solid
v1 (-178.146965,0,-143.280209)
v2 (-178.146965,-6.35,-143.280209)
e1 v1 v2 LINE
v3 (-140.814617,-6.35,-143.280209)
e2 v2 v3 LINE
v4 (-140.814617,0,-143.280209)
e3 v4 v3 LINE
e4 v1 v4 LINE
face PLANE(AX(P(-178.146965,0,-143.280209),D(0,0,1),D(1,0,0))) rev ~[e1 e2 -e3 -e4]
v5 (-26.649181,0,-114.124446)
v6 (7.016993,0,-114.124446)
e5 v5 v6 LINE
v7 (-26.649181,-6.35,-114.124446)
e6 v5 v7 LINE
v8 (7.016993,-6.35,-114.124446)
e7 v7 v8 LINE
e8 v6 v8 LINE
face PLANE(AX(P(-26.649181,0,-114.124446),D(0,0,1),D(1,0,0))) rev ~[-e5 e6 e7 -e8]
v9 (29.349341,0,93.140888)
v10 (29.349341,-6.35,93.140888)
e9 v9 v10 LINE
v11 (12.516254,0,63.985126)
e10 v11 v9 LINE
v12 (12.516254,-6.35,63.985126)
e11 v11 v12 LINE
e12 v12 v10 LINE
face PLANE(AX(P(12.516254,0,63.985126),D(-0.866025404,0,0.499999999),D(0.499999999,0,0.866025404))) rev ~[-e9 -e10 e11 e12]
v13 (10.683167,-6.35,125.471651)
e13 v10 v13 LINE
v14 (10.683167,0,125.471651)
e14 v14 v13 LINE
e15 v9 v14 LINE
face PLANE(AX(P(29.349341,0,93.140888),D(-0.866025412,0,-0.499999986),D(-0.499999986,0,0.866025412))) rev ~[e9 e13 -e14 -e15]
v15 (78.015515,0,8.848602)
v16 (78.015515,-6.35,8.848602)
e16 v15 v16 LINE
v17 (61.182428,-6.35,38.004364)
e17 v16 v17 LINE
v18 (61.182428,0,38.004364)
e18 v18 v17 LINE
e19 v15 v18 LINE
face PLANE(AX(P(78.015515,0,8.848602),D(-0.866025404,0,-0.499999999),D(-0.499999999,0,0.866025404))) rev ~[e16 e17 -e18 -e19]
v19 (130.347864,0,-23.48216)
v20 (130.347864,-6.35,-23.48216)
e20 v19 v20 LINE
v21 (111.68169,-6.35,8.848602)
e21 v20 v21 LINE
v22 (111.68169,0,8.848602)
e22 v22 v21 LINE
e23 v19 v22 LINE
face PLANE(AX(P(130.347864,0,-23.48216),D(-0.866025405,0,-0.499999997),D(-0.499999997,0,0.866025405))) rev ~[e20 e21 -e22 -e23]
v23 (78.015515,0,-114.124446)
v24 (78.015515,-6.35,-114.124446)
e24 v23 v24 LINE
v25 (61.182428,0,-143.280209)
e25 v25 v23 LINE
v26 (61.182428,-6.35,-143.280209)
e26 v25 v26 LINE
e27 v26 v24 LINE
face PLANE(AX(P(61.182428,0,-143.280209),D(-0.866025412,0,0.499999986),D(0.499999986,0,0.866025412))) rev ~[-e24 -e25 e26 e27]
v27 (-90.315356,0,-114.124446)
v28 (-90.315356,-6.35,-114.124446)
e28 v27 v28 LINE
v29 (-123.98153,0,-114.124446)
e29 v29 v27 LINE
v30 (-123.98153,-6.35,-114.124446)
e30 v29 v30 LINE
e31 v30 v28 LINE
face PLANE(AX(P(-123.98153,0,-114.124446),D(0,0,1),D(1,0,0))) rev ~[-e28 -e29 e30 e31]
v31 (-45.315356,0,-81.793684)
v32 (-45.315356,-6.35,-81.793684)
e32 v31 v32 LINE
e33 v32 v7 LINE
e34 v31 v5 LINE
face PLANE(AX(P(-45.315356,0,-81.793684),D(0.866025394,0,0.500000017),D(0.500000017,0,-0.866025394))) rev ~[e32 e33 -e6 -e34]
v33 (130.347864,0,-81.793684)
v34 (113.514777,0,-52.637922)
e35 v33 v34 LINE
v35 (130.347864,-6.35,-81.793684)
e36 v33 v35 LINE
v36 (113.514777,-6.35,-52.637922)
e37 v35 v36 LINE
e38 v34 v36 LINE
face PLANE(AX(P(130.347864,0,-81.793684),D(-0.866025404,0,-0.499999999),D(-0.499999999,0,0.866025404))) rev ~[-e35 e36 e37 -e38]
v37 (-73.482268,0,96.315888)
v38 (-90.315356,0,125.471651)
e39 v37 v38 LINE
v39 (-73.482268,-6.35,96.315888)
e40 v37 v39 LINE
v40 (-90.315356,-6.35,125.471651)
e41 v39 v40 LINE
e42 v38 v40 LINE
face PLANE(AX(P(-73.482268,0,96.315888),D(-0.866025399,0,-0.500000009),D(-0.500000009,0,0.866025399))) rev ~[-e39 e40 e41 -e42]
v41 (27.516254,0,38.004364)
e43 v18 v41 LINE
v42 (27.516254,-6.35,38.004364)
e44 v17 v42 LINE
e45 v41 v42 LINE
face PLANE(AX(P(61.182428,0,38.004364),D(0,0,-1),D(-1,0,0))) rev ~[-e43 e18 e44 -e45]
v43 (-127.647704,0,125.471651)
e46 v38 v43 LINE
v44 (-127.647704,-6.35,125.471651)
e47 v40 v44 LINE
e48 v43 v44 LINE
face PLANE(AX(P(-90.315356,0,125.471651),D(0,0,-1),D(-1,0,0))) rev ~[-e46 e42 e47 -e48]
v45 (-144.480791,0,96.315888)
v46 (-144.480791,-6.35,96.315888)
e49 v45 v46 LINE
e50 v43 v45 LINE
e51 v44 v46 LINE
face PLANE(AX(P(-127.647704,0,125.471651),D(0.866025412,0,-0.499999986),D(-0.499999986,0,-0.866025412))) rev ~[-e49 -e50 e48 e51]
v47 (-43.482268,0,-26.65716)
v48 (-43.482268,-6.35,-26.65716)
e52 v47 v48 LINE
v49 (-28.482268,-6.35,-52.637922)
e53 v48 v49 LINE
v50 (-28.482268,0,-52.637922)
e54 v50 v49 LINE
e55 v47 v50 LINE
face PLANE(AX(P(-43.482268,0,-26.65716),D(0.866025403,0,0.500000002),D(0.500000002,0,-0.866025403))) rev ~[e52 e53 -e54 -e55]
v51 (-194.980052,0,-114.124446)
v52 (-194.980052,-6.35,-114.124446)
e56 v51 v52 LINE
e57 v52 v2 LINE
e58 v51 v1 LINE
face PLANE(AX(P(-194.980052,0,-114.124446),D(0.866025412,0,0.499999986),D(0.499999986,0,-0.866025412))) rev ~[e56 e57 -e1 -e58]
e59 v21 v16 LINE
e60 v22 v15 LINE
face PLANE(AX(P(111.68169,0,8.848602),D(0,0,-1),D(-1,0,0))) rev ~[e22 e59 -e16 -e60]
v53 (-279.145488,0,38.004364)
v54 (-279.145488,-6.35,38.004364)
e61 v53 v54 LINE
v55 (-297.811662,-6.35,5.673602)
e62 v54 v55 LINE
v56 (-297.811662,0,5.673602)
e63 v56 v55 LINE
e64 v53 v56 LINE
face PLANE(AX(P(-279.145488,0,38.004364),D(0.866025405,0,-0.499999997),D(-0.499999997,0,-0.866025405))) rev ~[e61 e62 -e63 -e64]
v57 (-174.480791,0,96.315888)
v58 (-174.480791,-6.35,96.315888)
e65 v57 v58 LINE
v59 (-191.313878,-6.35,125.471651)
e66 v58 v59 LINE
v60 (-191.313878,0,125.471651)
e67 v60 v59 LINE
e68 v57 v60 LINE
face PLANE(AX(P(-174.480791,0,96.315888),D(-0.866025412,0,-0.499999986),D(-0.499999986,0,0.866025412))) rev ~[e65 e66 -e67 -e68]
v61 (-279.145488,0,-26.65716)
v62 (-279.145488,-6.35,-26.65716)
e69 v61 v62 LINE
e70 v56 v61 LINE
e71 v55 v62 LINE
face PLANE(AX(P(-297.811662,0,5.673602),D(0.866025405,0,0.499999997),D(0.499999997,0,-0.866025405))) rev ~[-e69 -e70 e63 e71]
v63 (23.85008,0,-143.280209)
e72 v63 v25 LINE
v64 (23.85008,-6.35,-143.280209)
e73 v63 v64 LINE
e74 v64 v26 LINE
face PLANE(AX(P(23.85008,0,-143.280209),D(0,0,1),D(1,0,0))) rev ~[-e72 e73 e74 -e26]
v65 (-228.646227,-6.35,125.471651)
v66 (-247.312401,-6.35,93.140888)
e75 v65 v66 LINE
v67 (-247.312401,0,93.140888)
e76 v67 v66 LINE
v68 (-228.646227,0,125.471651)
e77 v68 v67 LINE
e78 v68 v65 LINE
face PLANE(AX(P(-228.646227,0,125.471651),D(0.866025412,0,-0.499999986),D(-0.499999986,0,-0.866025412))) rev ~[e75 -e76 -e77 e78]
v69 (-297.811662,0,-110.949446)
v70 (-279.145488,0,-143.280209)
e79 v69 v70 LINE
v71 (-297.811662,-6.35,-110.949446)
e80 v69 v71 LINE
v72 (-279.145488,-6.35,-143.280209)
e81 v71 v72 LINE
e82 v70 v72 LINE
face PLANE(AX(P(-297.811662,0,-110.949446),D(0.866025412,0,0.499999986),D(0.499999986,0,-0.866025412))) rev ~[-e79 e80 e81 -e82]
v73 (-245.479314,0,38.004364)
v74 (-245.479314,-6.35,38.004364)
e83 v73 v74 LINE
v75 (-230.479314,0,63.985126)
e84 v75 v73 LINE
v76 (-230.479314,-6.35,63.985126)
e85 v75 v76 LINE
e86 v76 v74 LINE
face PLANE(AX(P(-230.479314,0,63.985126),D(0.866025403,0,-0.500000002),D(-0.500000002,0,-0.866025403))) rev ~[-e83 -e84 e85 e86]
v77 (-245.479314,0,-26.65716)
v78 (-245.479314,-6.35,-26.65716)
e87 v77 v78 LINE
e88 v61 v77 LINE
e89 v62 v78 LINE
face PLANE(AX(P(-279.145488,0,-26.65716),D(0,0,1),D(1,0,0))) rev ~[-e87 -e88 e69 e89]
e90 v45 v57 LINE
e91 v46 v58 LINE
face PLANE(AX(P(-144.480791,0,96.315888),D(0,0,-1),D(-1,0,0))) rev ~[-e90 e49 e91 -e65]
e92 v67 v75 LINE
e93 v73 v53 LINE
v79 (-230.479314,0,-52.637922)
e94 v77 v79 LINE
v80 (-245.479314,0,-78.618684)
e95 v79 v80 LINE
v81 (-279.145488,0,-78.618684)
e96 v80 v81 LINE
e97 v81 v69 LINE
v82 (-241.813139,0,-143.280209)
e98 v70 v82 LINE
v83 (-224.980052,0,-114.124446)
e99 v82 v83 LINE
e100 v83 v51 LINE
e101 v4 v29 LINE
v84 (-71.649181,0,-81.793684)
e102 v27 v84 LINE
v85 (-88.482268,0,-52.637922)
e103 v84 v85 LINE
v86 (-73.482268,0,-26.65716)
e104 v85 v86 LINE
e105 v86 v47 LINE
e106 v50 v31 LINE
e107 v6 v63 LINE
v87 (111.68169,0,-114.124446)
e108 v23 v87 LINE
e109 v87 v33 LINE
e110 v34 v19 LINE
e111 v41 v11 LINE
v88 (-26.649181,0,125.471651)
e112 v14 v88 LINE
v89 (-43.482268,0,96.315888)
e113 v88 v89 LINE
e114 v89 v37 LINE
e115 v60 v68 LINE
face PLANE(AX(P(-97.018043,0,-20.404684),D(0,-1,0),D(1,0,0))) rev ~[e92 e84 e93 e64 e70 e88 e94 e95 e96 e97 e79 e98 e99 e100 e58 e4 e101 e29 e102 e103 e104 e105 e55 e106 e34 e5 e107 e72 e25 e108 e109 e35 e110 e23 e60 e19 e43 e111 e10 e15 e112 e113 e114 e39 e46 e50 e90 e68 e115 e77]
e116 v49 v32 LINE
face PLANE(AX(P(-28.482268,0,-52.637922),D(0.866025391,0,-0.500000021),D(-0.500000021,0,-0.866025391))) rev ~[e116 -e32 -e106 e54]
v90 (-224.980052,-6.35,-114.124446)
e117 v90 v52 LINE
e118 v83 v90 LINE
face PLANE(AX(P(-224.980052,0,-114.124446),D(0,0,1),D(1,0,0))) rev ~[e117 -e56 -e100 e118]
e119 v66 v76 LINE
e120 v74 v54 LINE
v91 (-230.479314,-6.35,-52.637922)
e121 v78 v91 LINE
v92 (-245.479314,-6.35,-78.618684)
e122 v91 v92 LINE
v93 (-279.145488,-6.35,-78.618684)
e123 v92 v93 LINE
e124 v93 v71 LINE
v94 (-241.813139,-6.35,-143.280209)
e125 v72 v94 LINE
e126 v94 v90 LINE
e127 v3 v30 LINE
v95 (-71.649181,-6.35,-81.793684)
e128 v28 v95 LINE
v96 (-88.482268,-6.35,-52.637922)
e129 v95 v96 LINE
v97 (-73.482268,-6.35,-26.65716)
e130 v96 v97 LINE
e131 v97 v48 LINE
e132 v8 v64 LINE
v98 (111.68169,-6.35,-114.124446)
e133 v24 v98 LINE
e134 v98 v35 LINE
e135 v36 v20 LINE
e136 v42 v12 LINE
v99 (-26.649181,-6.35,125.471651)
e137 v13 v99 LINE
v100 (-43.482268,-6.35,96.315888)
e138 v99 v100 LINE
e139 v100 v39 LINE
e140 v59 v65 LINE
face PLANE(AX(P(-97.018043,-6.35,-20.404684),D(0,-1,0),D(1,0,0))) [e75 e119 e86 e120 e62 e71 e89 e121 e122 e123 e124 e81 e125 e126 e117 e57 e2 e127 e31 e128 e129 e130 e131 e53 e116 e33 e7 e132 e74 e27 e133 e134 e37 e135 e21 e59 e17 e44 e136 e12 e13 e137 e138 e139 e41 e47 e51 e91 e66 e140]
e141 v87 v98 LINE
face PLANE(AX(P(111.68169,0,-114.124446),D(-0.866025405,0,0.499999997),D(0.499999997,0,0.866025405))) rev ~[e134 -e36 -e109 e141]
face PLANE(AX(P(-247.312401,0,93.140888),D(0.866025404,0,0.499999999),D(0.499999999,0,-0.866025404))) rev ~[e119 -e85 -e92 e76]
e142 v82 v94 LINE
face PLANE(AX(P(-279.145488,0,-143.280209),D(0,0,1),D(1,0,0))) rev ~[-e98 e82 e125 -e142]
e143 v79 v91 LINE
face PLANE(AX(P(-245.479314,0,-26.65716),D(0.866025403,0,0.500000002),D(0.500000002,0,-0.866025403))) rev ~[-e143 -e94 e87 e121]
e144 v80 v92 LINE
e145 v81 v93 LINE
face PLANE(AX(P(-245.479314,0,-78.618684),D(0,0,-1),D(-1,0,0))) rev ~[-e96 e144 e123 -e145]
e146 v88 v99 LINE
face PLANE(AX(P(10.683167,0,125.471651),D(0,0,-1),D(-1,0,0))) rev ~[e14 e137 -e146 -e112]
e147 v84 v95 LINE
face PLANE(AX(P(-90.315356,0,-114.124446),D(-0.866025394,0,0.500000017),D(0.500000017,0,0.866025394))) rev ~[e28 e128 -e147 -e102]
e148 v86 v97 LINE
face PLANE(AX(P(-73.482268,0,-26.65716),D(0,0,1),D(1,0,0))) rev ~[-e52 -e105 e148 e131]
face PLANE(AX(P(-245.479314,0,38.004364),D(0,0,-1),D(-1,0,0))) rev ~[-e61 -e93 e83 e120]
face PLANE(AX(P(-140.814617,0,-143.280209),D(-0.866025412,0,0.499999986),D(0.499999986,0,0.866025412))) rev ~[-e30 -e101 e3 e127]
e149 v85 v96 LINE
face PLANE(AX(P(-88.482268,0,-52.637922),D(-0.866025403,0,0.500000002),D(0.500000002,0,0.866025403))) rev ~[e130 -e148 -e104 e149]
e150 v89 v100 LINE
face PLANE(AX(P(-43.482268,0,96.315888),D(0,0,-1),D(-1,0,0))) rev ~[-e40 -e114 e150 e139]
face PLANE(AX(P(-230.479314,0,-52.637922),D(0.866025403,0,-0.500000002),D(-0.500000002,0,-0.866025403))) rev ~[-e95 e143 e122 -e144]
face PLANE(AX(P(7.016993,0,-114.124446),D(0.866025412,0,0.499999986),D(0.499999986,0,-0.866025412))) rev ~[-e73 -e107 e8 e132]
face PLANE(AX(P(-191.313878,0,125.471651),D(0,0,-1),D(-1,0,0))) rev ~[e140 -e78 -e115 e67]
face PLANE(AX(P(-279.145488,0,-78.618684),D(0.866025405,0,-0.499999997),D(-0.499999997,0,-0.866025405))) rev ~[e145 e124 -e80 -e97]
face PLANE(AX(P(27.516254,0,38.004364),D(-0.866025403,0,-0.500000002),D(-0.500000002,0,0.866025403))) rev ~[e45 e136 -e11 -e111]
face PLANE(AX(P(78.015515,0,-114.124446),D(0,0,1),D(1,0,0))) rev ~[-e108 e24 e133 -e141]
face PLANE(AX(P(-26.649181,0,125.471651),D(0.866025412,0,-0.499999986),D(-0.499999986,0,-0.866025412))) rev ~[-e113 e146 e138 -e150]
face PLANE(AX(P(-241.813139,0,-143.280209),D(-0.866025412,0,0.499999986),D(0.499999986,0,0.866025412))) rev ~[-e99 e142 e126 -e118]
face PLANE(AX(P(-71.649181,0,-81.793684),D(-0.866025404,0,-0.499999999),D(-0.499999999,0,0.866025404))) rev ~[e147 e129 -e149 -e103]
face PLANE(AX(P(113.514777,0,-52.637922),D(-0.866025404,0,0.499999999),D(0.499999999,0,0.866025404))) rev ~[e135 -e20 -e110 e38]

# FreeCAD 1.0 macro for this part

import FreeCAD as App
import Part
import Sketcher
Q = App.Units.Quantity


def add_polygon(sketch, points):
    """Adds a closed chain of lines whose ends are joined by coincident constraints."""
    first, n = sketch.GeometryCount, len(points)
    for a, b in zip(points, points[1:] + points[:1]):
        sketch.addGeometry(Part.LineSegment(App.Vector(*a, 0), App.Vector(*b, 0)), False)
    for i in range(n):
        sketch.addConstraint(Sketcher.Constraint("Coincident", first + i, 2, first + (i + 1) % n, 1))

doc = App.newDocument("Part")
body = doc.addObject("PartDesign::Body", "Body")

# Sketch on XZ plane
sketch1 = body.newObject("Sketcher::SketchObject", "Sketch")
sketch1.AttachmentSupport = (doc.getObject("XZ_Plane"), [""])
sketch1.MapMode = "FlatFace"
add_polygon(sketch1, [(-140.814617, -143.280209), (-123.98153, -114.124446), (-90.315356, -114.124446), (-71.649181, -81.793684), (-88.482268, -52.637922), (-73.482268, -26.65716), (-43.482268, -26.65716), (-28.482268, -52.637922), (-45.315356, -81.793684), (-26.649181, -114.124446), (7.016993, -114.124446), (23.85008, -143.280209), (61.182428, -143.280209), (78.015515, -114.124446), (111.68169, -114.124446), (130.347864, -81.793684), (113.514777, -52.637922), (130.347864, -23.48216), (111.68169, 8.848602), (78.015515, 8.848602), (61.182428, 38.004364), (27.516254, 38.004364), (12.516254, 63.985126), (29.349341, 93.140888), (10.683167, 125.471651), (-26.649181, 125.471651), (-43.482268, 96.315888), (-73.482268, 96.315888), (-90.315356, 125.471651), (-127.647704, 125.471651), (-144.480791, 96.315888), (-174.480791, 96.315888), (-191.313878, 125.471651), (-228.646227, 125.471651), (-247.312401, 93.140888), (-230.479314, 63.985126), (-245.479314, 38.004364), (-279.145488, 38.004364), (-297.811662, 5.673602), (-279.145488, -26.65716), (-245.479314, -26.65716), (-230.479314, -52.637922), (-245.479314, -78.618684), (-279.145488, -78.618684), (-297.811662, -110.949446), (-279.145488, -143.280209), (-241.813139, -143.280209), (-224.980052, -114.124446), (-194.980052, -114.124446), (-178.146965, -143.280209)])  # lines 0-49
sketch1.addConstraint(Sketcher.Constraint("Horizontal", 1))
sketch1.addConstraint(Sketcher.Constraint("Horizontal", 5))
sketch1.addConstraint(Sketcher.Constraint("Horizontal", 9))
sketch1.addConstraint(Sketcher.Constraint("Horizontal", 11))
sketch1.addConstraint(Sketcher.Constraint("Horizontal", 13))
sketch1.addConstraint(Sketcher.Constraint("Horizontal", 18))
sketch1.addConstraint(Sketcher.Constraint("Horizontal", 20))
sketch1.addConstraint(Sketcher.Constraint("Horizontal", 24))
sketch1.addConstraint(Sketcher.Constraint("Horizontal", 26))
sketch1.addConstraint(Sketcher.Constraint("Horizontal", 28))
sketch1.addConstraint(Sketcher.Constraint("Horizontal", 30))
sketch1.addConstraint(Sketcher.Constraint("Horizontal", 32))
sketch1.addConstraint(Sketcher.Constraint("Horizontal", 36))
sketch1.addConstraint(Sketcher.Constraint("Horizontal", 39))
sketch1.addConstraint(Sketcher.Constraint("Horizontal", 42))
sketch1.addConstraint(Sketcher.Constraint("Horizontal", 45))
sketch1.addConstraint(Sketcher.Constraint("Horizontal", 47))
sketch1.addConstraint(Sketcher.Constraint("Horizontal", 49))
sketch1.addConstraint(Sketcher.Constraint("Parallel", 0, 2))
sketch1.addConstraint(Sketcher.Constraint("Parallel", 2, 4))
sketch1.addConstraint(Sketcher.Constraint("Parallel", 3, 6))
sketch1.addConstraint(Sketcher.Constraint("Parallel", 4, 7))
sketch1.addConstraint(Sketcher.Constraint("Parallel", 6, 8))
sketch1.addConstraint(Sketcher.Constraint("Parallel", 8, 10))
sketch1.addConstraint(Sketcher.Constraint("Parallel", 7, 12))
sketch1.addConstraint(Sketcher.Constraint("Parallel", 12, 14))
sketch1.addConstraint(Sketcher.Constraint("Parallel", 10, 15))
sketch1.addConstraint(Sketcher.Constraint("Parallel", 14, 16))
sketch1.addConstraint(Sketcher.Constraint("Parallel", 15, 17))
sketch1.addConstraint(Sketcher.Constraint("Parallel", 17, 19))
sketch1.addConstraint(Sketcher.Constraint("Parallel", 19, 21))
sketch1.addConstraint(Sketcher.Constraint("Parallel", 16, 22))
sketch1.addConstraint(Sketcher.Constraint("Parallel", 21, 23))
sketch1.addConstraint(Sketcher.Constraint("Parallel", 22, 25))
sketch1.addConstraint(Sketcher.Constraint("Parallel", 23, 27))
sketch1.addConstraint(Sketcher.Constraint("Parallel", 25, 29))
sketch1.addConstraint(Sketcher.Constraint("Parallel", 27, 31))
sketch1.addConstraint(Sketcher.Constraint("Parallel", 29, 33))
sketch1.addConstraint(Sketcher.Constraint("Parallel", 31, 34))
sketch1.addConstraint(Sketcher.Constraint("Parallel", 33, 35))
sketch1.addConstraint(Sketcher.Constraint("Parallel", 35, 37))
sketch1.addConstraint(Sketcher.Constraint("Parallel", 34, 38))
sketch1.addConstraint(Sketcher.Constraint("Parallel", 38, 40))
sketch1.addConstraint(Sketcher.Constraint("Parallel", 37, 41))
sketch1.addConstraint(Sketcher.Constraint("Parallel", 41, 43))
sketch1.addConstraint(Sketcher.Constraint("Parallel", 40, 44))
sketch1.addConstraint(Sketcher.Constraint("Parallel", 43, 46))
sketch1.addConstraint(Sketcher.Constraint("Parallel", 44, 48))
sketch1.addConstraint(Sketcher.Constraint("Horizontal", 3, 2, 6, 2))
sketch1.addConstraint(Sketcher.Constraint("Horizontal", 2, 2, 7, 2))
sketch1.addConstraint(Sketcher.Constraint("Horizontal", 1, 2, 8, 2))
sketch1.addConstraint(Sketcher.Constraint("Horizontal", 9, 2, 12, 2))
sketch1.addConstraint(Sketcher.Constraint("Horizontal", 7, 2, 14, 2))
sketch1.addConstraint(Sketcher.Constraint("Horizontal", 6, 2, 15, 2))
sketch1.addConstraint(Sketcher.Constraint("Horizontal", 24, 2, 27, 2))
sketch1.addConstraint(Sketcher.Constraint("Horizontal", 26, 2, 29, 2))
sketch1.addConstraint(Sketcher.Constraint("Horizontal", 28, 2, 31, 2))
sketch1.addConstraint(Sketcher.Constraint("Horizontal", 22, 2, 33, 2))
sketch1.addConstraint(Sketcher.Constraint("Horizontal", 21, 2, 34, 2))
sketch1.addConstraint(Sketcher.Constraint("Horizontal", 20, 2, 35, 2))
sketch1.addConstraint(Sketcher.Constraint("Horizontal", 5, 2, 38, 2))
sketch1.addConstraint(Sketcher.Constraint("Horizontal", 15, 2, 40, 2))
sketch1.addConstraint(Sketcher.Constraint("Horizontal", 11, 2, 44, 2))
sketch1.addConstraint(Sketcher.Constraint("Horizontal", 13, 2, 46, 2))
sketch1.addConstraint(Sketcher.Constraint("Horizontal", 45, 2, 48, 2))
sketch1.addConstraint(Sketcher.Constraint("Vertical", 14, 2, 16, 2))
sketch1.addConstraint(Sketcher.Constraint("Vertical", 13, 2, 17, 2))
sketch1.addConstraint(Sketcher.Constraint("Vertical", 12, 2, 18, 2))
sketch1.addConstraint(Sketcher.Constraint("Vertical", 11, 2, 19, 2))
sketch1.addConstraint(Sketcher.Constraint("Vertical", 8, 2, 24, 2))
sketch1.addConstraint(Sketcher.Constraint("Vertical", 5, 2, 25, 2))
sketch1.addConstraint(Sketcher.Constraint("Vertical", 4, 2, 26, 2))
sketch1.addConstraint(Sketcher.Constraint("Vertical", 1, 2, 27, 2))
sketch1.addConstraint(Sketcher.Constraint("Vertical", 36, 2, 38, 2))
sketch1.addConstraint(Sketcher.Constraint("Vertical", 35, 2, 39, 2))
sketch1.addConstraint(Sketcher.Constraint("Vertical", 34, 2, 40, 2))
sketch1.addConstraint(Sketcher.Constraint("Vertical", 39, 2, 41, 2))
sketch1.addConstraint(Sketcher.Constraint("Vertical", 38, 2, 42, 2))
sketch1.addConstraint(Sketcher.Constraint("Vertical", 37, 2, 43, 2))
sketch1.addConstraint(Sketcher.Constraint("Equal", 1, 9))
sketch1.addConstraint(Sketcher.Constraint("Equal", 9, 13))
sketch1.addConstraint(Sketcher.Constraint("Equal", 18, 20))
sketch1.addConstraint(Sketcher.Constraint("Equal", 11, 24))
sketch1.addConstraint(Sketcher.Constraint("Equal", 24, 28))
sketch1.addConstraint(Sketcher.Constraint("Equal", 26, 30))
sketch1.addConstraint(Sketcher.Constraint("Equal", 28, 32))
sketch1.addConstraint(Sketcher.Constraint("Equal", 20, 36))
sketch1.addConstraint(Sketcher.Constraint("Equal", 32, 45))
sketch1.addConstraint(Sketcher.Constraint("Equal", 30, 47))
sketch1.addConstraint(Sketcher.Constraint("Equal", 45, 49))
sketch1.addConstraint(Sketcher.Constraint("Equal", 0, 3))
sketch1.addConstraint(Sketcher.Constraint("Equal", 19, 22))
sketch1.addConstraint(Sketcher.Constraint("DistanceX", 5, 1, 5, 2, 30.0))
sketch1.addConstraint(Sketcher.Constraint("Angle", 0, Q("60.000001 deg")))
sketch1.addConstraint(Sketcher.Constraint("Distance", 4, 30.0))
sketch1.addConstraint(Sketcher.Constraint("DistanceY", 22, 2, 25, 2, 3.175))
sketch1.addConstraint(Sketcher.Constraint("DistanceX", 11, 1, 11, 2, 37.332348))
sketch1.addConstraint(Sketcher.Constraint("DistanceX", 33, 2, -1, 1, 247.312401))
sketch1.addConstraint(Sketcher.Constraint("DistanceY", -1, 1, 37, 2, 5.673602))
sketch1.addConstraint(Sketcher.Constraint("DistanceX", 1, 1, 1, 2, 33.666174))
pad1 = body.newObject("PartDesign::Pad", "Pad")
pad1.Profile = sketch1
pad1.Length = 6.35

doc.recompute()
